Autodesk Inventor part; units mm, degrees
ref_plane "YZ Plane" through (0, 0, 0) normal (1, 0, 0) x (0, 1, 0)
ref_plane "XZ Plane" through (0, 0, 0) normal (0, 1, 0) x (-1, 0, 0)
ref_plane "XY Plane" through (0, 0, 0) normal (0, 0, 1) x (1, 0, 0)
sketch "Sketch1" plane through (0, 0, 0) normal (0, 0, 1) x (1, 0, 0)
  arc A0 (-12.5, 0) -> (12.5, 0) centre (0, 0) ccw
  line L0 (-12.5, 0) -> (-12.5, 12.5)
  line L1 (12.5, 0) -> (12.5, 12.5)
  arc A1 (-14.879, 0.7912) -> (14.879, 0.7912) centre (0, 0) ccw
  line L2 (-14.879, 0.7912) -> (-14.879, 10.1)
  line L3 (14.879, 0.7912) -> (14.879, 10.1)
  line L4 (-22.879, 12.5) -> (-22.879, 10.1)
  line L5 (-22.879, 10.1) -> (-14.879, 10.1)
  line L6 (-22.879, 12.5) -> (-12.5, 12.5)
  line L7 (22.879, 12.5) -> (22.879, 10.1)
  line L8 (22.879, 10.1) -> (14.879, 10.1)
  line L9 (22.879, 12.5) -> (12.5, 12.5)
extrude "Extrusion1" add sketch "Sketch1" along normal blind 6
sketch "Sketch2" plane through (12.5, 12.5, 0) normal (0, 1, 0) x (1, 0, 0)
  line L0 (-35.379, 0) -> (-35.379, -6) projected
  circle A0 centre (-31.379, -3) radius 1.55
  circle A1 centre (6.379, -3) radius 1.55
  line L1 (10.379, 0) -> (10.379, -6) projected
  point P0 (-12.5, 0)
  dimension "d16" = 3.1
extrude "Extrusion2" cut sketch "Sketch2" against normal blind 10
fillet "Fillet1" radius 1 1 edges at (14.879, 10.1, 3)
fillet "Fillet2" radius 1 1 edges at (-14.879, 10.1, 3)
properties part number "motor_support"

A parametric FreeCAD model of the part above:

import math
import FreeCAD as App
import Part
import Sketcher
from FreeCAD import Vector


def edges_at(feature, points):
    """Names of the edges that pass closest to the given points."""
    edges = feature.Shape.Edges
    near = lambda p: min(range(len(edges)), key=lambda i: edges[i].distToShape(Part.Vertex(*p))[0])
    return sorted({f"Edge{near(p) + 1}" for p in points})

doc = App.newDocument("Part")
params = doc.addObject("Spreadsheet::Sheet", "Params")
for row, (alias, value) in enumerate([
    ("sketch1_radius", "12.5 mm"),
    ("sketch1_radius2", "14.9 mm"),
    ("sketch1_width", "8 mm"),
    ("sketch1_height", "12.5 mm"),
    ("sketch1_height2", "2.4 mm"),
    ("pad1_length", "6 mm"),
    ("sketch2_diameter", "3.1 mm"),
    ("pocket1_length", "10 mm"),
    ("fillet_radius", "1 mm"),
    ("fillet2_radius", "1 mm"),
], start=1):
    params.set(f"A{row}", alias)
    params.set(f"B{row}", "=" + value)
    params.setAlias(f"B{row}", alias)

body = doc.addObject("PartDesign::Body", "Body")

sketch1 = body.newObject("Sketcher::SketchObject", "Sketch")
sketch1.AttachmentSupport = (doc.getObject("XY_Plane"), [""])
sketch1.MapMode = "FlatFace"
sketch1.addGeometry(Part.ArcOfCircle(Part.Circle(Vector(0, 0, 0), Vector(0, 0, 1), 12.5), math.radians(180), math.radians(360)), False)
sketch1.addGeometry(Part.LineSegment(Vector(-12.5, 0, 0), Vector(-12.5, 12.5, 0)), False)
sketch1.addGeometry(Part.LineSegment(Vector(-12.5, 12.5, 0), Vector(-22.9, 12.5, 0)), False)
sketch1.addGeometry(Part.LineSegment(Vector(-22.9, 12.5, 0), Vector(-22.9, 10.1, 0)), False)
sketch1.addGeometry(Part.LineSegment(Vector(-22.9, 10.1, 0), Vector(-14.9, 10.1, 0)), False)
sketch1.addGeometry(Part.LineSegment(Vector(-14.9, 10.1, 0), Vector(-14.9, 0.8, 0)), False)
sketch1.addGeometry(Part.ArcOfCircle(Part.Circle(Vector(0, 0, 0), Vector(0, 0, 1), 14.9), math.radians(177), math.radians(363)), False)
sketch1.addGeometry(Part.LineSegment(Vector(14.9, 0.8, 0), Vector(14.9, 10.1, 0)), False)
sketch1.addGeometry(Part.LineSegment(Vector(14.9, 10.1, 0), Vector(22.9, 10.1, 0)), False)
sketch1.addGeometry(Part.LineSegment(Vector(22.9, 10.1, 0), Vector(22.9, 12.5, 0)), False)
sketch1.addGeometry(Part.LineSegment(Vector(22.9, 12.5, 0), Vector(12.5, 12.5, 0)), False)
sketch1.addGeometry(Part.LineSegment(Vector(12.5, 12.5, 0), Vector(12.5, 0, 0)), False)
sketch1.addConstraint(Sketcher.Constraint("Tangent", 0, 1, 1, 1))
sketch1.addConstraint(Sketcher.Constraint("Coincident", 1, 2, 2, 1))
sketch1.addConstraint(Sketcher.Constraint("Coincident", 2, 2, 3, 1))
sketch1.addConstraint(Sketcher.Constraint("Coincident", 3, 2, 4, 1))
sketch1.addConstraint(Sketcher.Constraint("Coincident", 4, 2, 5, 1))
sketch1.addConstraint(Sketcher.Constraint("Coincident", 5, 2, 6, 1))
sketch1.addConstraint(Sketcher.Constraint("Coincident", 6, 2, 7, 1))
sketch1.addConstraint(Sketcher.Constraint("Coincident", 7, 2, 8, 1))
sketch1.addConstraint(Sketcher.Constraint("Coincident", 8, 2, 9, 1))
sketch1.addConstraint(Sketcher.Constraint("Coincident", 9, 2, 10, 1))
sketch1.addConstraint(Sketcher.Constraint("Coincident", 10, 2, 11, 1))
sketch1.addConstraint(Sketcher.Constraint("Tangent", 11, 2, 0, 2))
sketch1.addConstraint(Sketcher.Constraint("Vertical", 1))
sketch1.addConstraint(Sketcher.Constraint("Horizontal", 2))
sketch1.addConstraint(Sketcher.Constraint("Vertical", 3))
sketch1.addConstraint(Sketcher.Constraint("Horizontal", 4))
sketch1.addConstraint(Sketcher.Constraint("Vertical", 5))
sketch1.addConstraint(Sketcher.Constraint("Vertical", 7))
sketch1.addConstraint(Sketcher.Constraint("Horizontal", 8))
sketch1.addConstraint(Sketcher.Constraint("Vertical", 9))
sketch1.addConstraint(Sketcher.Constraint("Horizontal", 10))
sketch1.addConstraint(Sketcher.Constraint("Vertical", 11))
sketch1.addConstraint(Sketcher.Constraint("Coincident", 0, 3, -1, 1))
sketch1.addConstraint(Sketcher.Constraint("Coincident", 6, 3, -1, 1))
sketch1.addConstraint(Sketcher.Constraint("Symmetric", 4, 2, 7, 2, -2))
sketch1.addConstraint(Sketcher.Constraint("Symmetric", 2, 2, 9, 2, -2))
sketch1.addConstraint(Sketcher.Constraint("Radius", 0, 12.5))
sketch1.addConstraint(Sketcher.Constraint("Radius", 6, 14.9))
sketch1.addConstraint(Sketcher.Constraint("DistanceX", 4, 1, 4, 2, 8.0))
sketch1.addConstraint(Sketcher.Constraint("DistanceY", 1, 1, 1, 2, 12.5))
sketch1.addConstraint(Sketcher.Constraint("DistanceY", 3, 2, 3, 1, 2.4))
sketch1.addConstraint(Sketcher.Constraint("DistanceX", 2, 2, 2, 1, 10.379))
sketch1.setExpression("Constraints[26]", "Params.sketch1_radius")
sketch1.setExpression("Constraints[27]", "Params.sketch1_radius2")
sketch1.setExpression("Constraints[28]", "Params.sketch1_width")
sketch1.setExpression("Constraints[29]", "Params.sketch1_height")
sketch1.setExpression("Constraints[30]", "Params.sketch1_height2")
pad1 = body.newObject("PartDesign::Pad", "Pad")
pad1.Profile = sketch1
pad1.setExpression("Length", "Params.pad1_length")

sketch2 = body.newObject("Sketcher::SketchObject", "Sketch001")
sketch2.AttachmentSupport = (doc.getObject("XZ_Plane"), [""])
sketch2.MapMode = "FlatFace"
sketch2.AttachmentOffset = App.Placement(Vector(0, 0, -12.5), App.Rotation())
sketch2.addGeometry(Part.Circle(Vector(-18.9, 3, 0), Vector(0, 0, 1), 1.6), False)
sketch2.addGeometry(Part.Circle(Vector(18.9, 3, 0), Vector(0, 0, 1), 1.6), False)
sketch2.addConstraint(Sketcher.Constraint("Equal", 0, 1))
sketch2.addConstraint(Sketcher.Constraint("Symmetric", 0, 3, 1, 3, -2))
sketch2.addConstraint(Sketcher.Constraint("Diameter", 0, 3.1))
sketch2.addConstraint(Sketcher.Constraint("DistanceY", -1, 1, 0, 3, 3.0))
sketch2.addConstraint(Sketcher.Constraint("DistanceX", 0, 3, -1, 1, 18.879))
sketch2.setExpression("Constraints[2]", "Params.sketch2_diameter")
pocket1 = body.newObject("PartDesign::Pocket", "Pocket")
pocket1.Profile = sketch2
pocket1.setExpression("Length", "Params.pocket1_length")
pocket1.Reversed = True
doc.recompute()

fillet = body.newObject("PartDesign::Fillet", "Fillet")
fillet.Base = (pocket1, edges_at(pocket1, [(14.879, 10.1, 3)]))
fillet.setExpression("Radius", "Params.fillet_radius")
doc.recompute()

fillet2 = body.newObject("PartDesign::Fillet", "Fillet001")
fillet2.Base = (fillet, edges_at(fillet, [(-14.879, 10.1, 3)]))
fillet2.setExpression("Radius", "Params.fillet2_radius")

doc.recompute()
